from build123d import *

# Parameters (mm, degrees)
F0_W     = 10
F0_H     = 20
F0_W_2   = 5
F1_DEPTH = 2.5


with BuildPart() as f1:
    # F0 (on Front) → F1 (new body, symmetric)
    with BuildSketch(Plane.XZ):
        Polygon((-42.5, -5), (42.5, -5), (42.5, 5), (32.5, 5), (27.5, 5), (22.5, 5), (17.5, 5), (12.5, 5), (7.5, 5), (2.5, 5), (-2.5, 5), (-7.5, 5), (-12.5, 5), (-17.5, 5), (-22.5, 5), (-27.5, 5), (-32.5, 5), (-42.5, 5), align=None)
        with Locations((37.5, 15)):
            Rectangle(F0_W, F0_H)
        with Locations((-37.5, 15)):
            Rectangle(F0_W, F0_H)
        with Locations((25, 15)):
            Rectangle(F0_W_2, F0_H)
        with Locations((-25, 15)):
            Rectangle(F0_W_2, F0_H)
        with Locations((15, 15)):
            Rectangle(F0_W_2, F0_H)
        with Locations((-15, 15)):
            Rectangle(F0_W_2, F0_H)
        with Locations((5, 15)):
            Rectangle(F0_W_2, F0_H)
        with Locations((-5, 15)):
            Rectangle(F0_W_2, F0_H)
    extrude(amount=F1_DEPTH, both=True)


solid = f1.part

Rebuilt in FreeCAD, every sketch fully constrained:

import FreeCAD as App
import Part
import Sketcher
Q = App.Units.Quantity

doc = App.newDocument("Part")
body = doc.addObject("PartDesign::Body", "Body")

# Sketch on XZ plane
sketch1 = doc.addObject("Sketcher::SketchObject", "Sketch")
body.addObject(sketch1)
sketch1.AttachmentSupport = (doc.XZ_Plane, [""])
sketch1.MapMode = "FlatFace"
sketch1.addGeometry([
    Part.LineSegment(App.Vector(-42, -5, 0), App.Vector(42, -5, 0)),  # 0
    Part.LineSegment(App.Vector(42, -5, 0), App.Vector(42, 25, 0)),  # 1
    Part.LineSegment(App.Vector(42, 25, 0), App.Vector(32, 25, 0)),  # 2
    Part.LineSegment(App.Vector(32, 25, 0), App.Vector(32, 5, 0)),  # 3
    Part.LineSegment(App.Vector(32, 5, 0), App.Vector(28, 5, 0)),  # 4
    Part.LineSegment(App.Vector(28, 5, 0), App.Vector(28, 25, 0)),  # 5
    Part.LineSegment(App.Vector(28, 25, 0), App.Vector(22, 25, 0)),  # 6
    Part.LineSegment(App.Vector(22, 25, 0), App.Vector(22, 5, 0)),  # 7
    Part.LineSegment(App.Vector(22, 5, 0), App.Vector(18, 5, 0)),  # 8
    Part.LineSegment(App.Vector(18, 5, 0), App.Vector(18, 25, 0)),  # 9
    Part.LineSegment(App.Vector(18, 25, 0), App.Vector(12, 25, 0)),  # 10
    Part.LineSegment(App.Vector(12, 25, 0), App.Vector(12, 5, 0)),  # 11
    Part.LineSegment(App.Vector(12, 5, 0), App.Vector(8, 5, 0)),  # 12
    Part.LineSegment(App.Vector(8, 5, 0), App.Vector(8, 25, 0)),  # 13
    Part.LineSegment(App.Vector(8, 25, 0), App.Vector(2, 25, 0)),  # 14
    Part.LineSegment(App.Vector(2, 25, 0), App.Vector(2, 5, 0)),  # 15
    Part.LineSegment(App.Vector(2, 5, 0), App.Vector(-2, 5, 0)),  # 16
    Part.LineSegment(App.Vector(-2, 5, 0), App.Vector(-2, 25, 0)),  # 17
    Part.LineSegment(App.Vector(-2, 25, 0), App.Vector(-8, 25, 0)),  # 18
    Part.LineSegment(App.Vector(-8, 25, 0), App.Vector(-8, 5, 0)),  # 19
    Part.LineSegment(App.Vector(-8, 5, 0), App.Vector(-12, 5, 0)),  # 20
    Part.LineSegment(App.Vector(-12, 5, 0), App.Vector(-12, 25, 0)),  # 21
    Part.LineSegment(App.Vector(-12, 25, 0), App.Vector(-18, 25, 0)),  # 22
    Part.LineSegment(App.Vector(-18, 25, 0), App.Vector(-18, 5, 0)),  # 23
    Part.LineSegment(App.Vector(-18, 5, 0), App.Vector(-22, 5, 0)),  # 24
    Part.LineSegment(App.Vector(-22, 5, 0), App.Vector(-22, 25, 0)),  # 25
    Part.LineSegment(App.Vector(-22, 25, 0), App.Vector(-28, 25, 0)),  # 26
    Part.LineSegment(App.Vector(-28, 25, 0), App.Vector(-28, 5, 0)),  # 27
    Part.LineSegment(App.Vector(-28, 5, 0), App.Vector(-32, 5, 0)),  # 28
    Part.LineSegment(App.Vector(-32, 5, 0), App.Vector(-32, 25, 0)),  # 29
    Part.LineSegment(App.Vector(-32, 25, 0), App.Vector(-42, 25, 0)),  # 30
    Part.LineSegment(App.Vector(-42, 25, 0), App.Vector(-42, -5, 0)),  # 31
], False)
sketch1.addConstraint([
    Sketcher.Constraint("Coincident", 0, 2, 1, 1),
    Sketcher.Constraint("Coincident", 1, 2, 2, 1),
    Sketcher.Constraint("Coincident", 2, 2, 3, 1),
    Sketcher.Constraint("Coincident", 3, 2, 4, 1),
    Sketcher.Constraint("Coincident", 4, 2, 5, 1),
    Sketcher.Constraint("Coincident", 5, 2, 6, 1),
    Sketcher.Constraint("Coincident", 6, 2, 7, 1),
    Sketcher.Constraint("Coincident", 7, 2, 8, 1),
    Sketcher.Constraint("Coincident", 8, 2, 9, 1),
    Sketcher.Constraint("Coincident", 9, 2, 10, 1),
    Sketcher.Constraint("Coincident", 10, 2, 11, 1),
    Sketcher.Constraint("Coincident", 11, 2, 12, 1),
    Sketcher.Constraint("Coincident", 12, 2, 13, 1),
    Sketcher.Constraint("Coincident", 13, 2, 14, 1),
    Sketcher.Constraint("Coincident", 14, 2, 15, 1),
    Sketcher.Constraint("Coincident", 15, 2, 16, 1),
    Sketcher.Constraint("Coincident", 16, 2, 17, 1),
    Sketcher.Constraint("Coincident", 17, 2, 18, 1),
    Sketcher.Constraint("Coincident", 18, 2, 19, 1),
    Sketcher.Constraint("Coincident", 19, 2, 20, 1),
    Sketcher.Constraint("Coincident", 20, 2, 21, 1),
    Sketcher.Constraint("Coincident", 21, 2, 22, 1),
    Sketcher.Constraint("Coincident", 22, 2, 23, 1),
    Sketcher.Constraint("Coincident", 23, 2, 24, 1),
    Sketcher.Constraint("Coincident", 24, 2, 25, 1),
    Sketcher.Constraint("Coincident", 25, 2, 26, 1),
    Sketcher.Constraint("Coincident", 26, 2, 27, 1),
    Sketcher.Constraint("Coincident", 27, 2, 28, 1),
    Sketcher.Constraint("Coincident", 28, 2, 29, 1),
    Sketcher.Constraint("Coincident", 29, 2, 30, 1),
    Sketcher.Constraint("Coincident", 30, 2, 31, 1),
    Sketcher.Constraint("Coincident", 31, 2, 0, 1),
    Sketcher.Constraint("Horizontal", 0),
    Sketcher.Constraint("Vertical", 1),
    Sketcher.Constraint("Horizontal", 2),
    Sketcher.Constraint("Vertical", 3),
    Sketcher.Constraint("Horizontal", 4),
    Sketcher.Constraint("Vertical", 5),
    Sketcher.Constraint("Horizontal", 6),
    Sketcher.Constraint("Vertical", 7),
    Sketcher.Constraint("Horizontal", 8),
    Sketcher.Constraint("Vertical", 9),
    Sketcher.Constraint("Horizontal", 10),
    Sketcher.Constraint("Vertical", 11),
    Sketcher.Constraint("Horizontal", 12),
    Sketcher.Constraint("Vertical", 13),
    Sketcher.Constraint("Horizontal", 14),
    Sketcher.Constraint("Vertical", 15),
    Sketcher.Constraint("Horizontal", 16),
    Sketcher.Constraint("Vertical", 17),
    Sketcher.Constraint("Horizontal", 18),
    Sketcher.Constraint("Vertical", 19),
    Sketcher.Constraint("Horizontal", 20),
    Sketcher.Constraint("Vertical", 21),
    Sketcher.Constraint("Horizontal", 22),
    Sketcher.Constraint("Vertical", 23),
    Sketcher.Constraint("Horizontal", 24),
    Sketcher.Constraint("Vertical", 25),
    Sketcher.Constraint("Horizontal", 26),
    Sketcher.Constraint("Vertical", 27),
    Sketcher.Constraint("Horizontal", 28),
    Sketcher.Constraint("Vertical", 29),
    Sketcher.Constraint("Horizontal", 30),
    Sketcher.Constraint("Vertical", 31),
    Sketcher.Constraint("Symmetric", 14, 2, 17, 2, -2),
    Sketcher.Constraint("Symmetric", 12, 2, 19, 2, -2),
    Sketcher.Constraint("Symmetric", 10, 2, 21, 2, -2),
    Sketcher.Constraint("Symmetric", 8, 2, 23, 2, -2),
    Sketcher.Constraint("Symmetric", 6, 2, 25, 2, -2),
    Sketcher.Constraint("Symmetric", 4, 2, 27, 2, -2),
    Sketcher.Constraint("Symmetric", 2, 2, 29, 2, -2),
    Sketcher.Constraint("Horizontal", 2, 2, 5, 2),
    Sketcher.Constraint("Horizontal", 4, 2, 7, 2),
    Sketcher.Constraint("Horizontal", 6, 2, 9, 2),
    Sketcher.Constraint("Horizontal", 8, 2, 11, 2),
    Sketcher.Constraint("Horizontal", 10, 2, 13, 2),
    Sketcher.Constraint("Horizontal", 12, 2, 15, 2),
    Sketcher.Constraint("Equal", 4, 6),
    Sketcher.Constraint("Equal", 6, 8),
    Sketcher.Constraint("Equal", 8, 10),
    Sketcher.Constraint("Equal", 10, 12),
    Sketcher.Constraint("Equal", 12, 14),
    Sketcher.Constraint("Equal", 14, 16),
    Sketcher.Constraint("Equal", 2, 30),
    Sketcher.Constraint("DistanceX", 0, 1, 0, 2, Q("85 mm")),
    Sketcher.Constraint("DistanceX", 2, 2, 2, 1, Q("10 mm")),
    Sketcher.Constraint("DistanceY", 1, 1, 1, 2, Q("30 mm")),
    Sketcher.Constraint("DistanceY", 3, 2, 3, 1, Q("20 mm")),
    Sketcher.Constraint("DistanceY", 0, 2, -1, 1, Q("5 mm")),
])
pad1 = doc.addObject("PartDesign::Pad", "Pad")
body.addObject(pad1)
pad1.Profile = sketch1
pad1.Length = 5
pad1.Midplane = True

doc.recompute()
